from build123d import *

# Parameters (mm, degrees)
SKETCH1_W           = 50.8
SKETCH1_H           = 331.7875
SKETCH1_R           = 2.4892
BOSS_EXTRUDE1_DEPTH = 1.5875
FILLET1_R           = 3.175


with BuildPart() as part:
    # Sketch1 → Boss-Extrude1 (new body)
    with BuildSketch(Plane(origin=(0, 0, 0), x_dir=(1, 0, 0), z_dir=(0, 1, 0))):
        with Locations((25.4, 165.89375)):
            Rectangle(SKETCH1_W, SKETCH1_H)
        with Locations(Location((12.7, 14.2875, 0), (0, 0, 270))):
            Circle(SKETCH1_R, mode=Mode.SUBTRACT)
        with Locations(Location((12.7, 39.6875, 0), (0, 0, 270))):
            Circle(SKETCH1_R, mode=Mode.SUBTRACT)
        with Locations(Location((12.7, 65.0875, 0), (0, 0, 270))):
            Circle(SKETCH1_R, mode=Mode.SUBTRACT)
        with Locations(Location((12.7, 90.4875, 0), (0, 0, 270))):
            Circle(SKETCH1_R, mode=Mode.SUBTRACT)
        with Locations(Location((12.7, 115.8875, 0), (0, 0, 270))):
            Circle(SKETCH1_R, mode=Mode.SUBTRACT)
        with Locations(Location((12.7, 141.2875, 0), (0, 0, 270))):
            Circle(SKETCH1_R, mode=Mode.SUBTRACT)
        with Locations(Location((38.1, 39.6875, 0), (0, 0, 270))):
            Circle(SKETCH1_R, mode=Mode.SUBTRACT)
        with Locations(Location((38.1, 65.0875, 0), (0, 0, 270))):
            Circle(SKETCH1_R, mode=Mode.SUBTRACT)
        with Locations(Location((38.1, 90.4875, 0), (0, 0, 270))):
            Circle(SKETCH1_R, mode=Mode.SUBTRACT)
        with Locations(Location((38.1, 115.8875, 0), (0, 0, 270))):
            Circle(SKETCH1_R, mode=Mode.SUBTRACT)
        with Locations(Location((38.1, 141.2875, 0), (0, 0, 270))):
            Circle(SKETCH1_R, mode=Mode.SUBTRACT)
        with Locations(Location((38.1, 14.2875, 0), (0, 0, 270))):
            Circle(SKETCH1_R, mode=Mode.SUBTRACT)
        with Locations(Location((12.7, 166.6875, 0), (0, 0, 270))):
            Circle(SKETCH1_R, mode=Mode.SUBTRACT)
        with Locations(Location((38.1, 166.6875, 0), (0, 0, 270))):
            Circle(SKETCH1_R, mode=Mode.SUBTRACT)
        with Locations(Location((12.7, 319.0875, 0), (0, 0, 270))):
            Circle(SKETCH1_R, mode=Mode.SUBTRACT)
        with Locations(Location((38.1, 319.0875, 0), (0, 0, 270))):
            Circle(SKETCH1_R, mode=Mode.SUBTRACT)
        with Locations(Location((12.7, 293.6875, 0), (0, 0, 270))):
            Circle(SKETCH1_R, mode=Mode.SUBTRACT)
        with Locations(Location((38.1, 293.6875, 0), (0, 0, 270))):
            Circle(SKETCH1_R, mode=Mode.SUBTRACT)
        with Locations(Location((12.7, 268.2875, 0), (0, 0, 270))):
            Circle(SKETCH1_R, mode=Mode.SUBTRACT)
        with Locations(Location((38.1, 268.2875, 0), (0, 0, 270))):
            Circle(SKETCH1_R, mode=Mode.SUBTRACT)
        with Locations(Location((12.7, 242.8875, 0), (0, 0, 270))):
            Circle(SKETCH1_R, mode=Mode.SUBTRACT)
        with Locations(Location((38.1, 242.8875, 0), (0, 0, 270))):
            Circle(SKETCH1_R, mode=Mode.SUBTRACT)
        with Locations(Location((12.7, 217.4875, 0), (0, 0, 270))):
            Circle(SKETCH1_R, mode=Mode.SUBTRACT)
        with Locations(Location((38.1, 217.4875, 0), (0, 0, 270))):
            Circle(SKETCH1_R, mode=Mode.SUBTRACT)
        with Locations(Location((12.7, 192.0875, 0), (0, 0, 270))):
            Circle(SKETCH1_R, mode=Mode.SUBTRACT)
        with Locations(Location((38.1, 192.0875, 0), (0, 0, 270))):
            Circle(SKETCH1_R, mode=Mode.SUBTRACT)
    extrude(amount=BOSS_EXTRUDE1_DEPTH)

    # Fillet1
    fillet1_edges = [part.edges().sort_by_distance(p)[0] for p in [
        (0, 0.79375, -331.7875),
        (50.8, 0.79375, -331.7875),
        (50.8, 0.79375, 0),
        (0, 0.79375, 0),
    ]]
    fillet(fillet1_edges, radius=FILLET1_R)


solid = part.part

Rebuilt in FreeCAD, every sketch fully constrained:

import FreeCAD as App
import Part
import Sketcher

V = App.Vector
Q = App.Units.Quantity


def edges_at(feature, points):
    """Names of the edges that pass closest to the given points."""
    edges = feature.Shape.Edges
    near = lambda p: min(range(len(edges)), key=lambda i: edges[i].distToShape(Part.Vertex(*p))[0])
    return sorted({f"Edge{near(p) + 1}" for p in points})


def add_polygon(sketch, points):
    """Adds a closed chain of lines whose ends are joined by coincident constraints."""
    first, n = sketch.GeometryCount, len(points)
    for a, b in zip(points, points[1:] + points[:1]):
        sketch.addGeometry(Part.LineSegment(App.Vector(*a, 0), App.Vector(*b, 0)), False)
    for i in range(n):
        sketch.addConstraint(Sketcher.Constraint("Coincident", first + i, 2, first + (i + 1) % n, 1))

doc = App.newDocument("Part")
body = doc.addObject("PartDesign::Body", "Body")

sketch1 = body.newObject("Sketcher::SketchObject", "Sketch")
sketch1.AttachmentSupport = (doc.getObject("XZ_Plane"), [""])
sketch1.MapMode = "FlatFace"
add_polygon(sketch1, [(0, -331.8), (0, 0), (50.8, 0), (50.8, -331.8)])
sketch1.addGeometry(Part.Circle(V(12.7, -14.3, 0), V(0, 0, 1), 2.5), False)
sketch1.addGeometry(Part.Circle(V(12.7, -39.7, 0), V(0, 0, 1), 2.5), False)
sketch1.addGeometry(Part.Circle(V(12.7, -65.1, 0), V(0, 0, 1), 2.5), False)
sketch1.addGeometry(Part.Circle(V(12.7, -90.5, 0), V(0, 0, 1), 2.5), False)
sketch1.addGeometry(Part.Circle(V(12.7, -115.9, 0), V(0, 0, 1), 2.5), False)
sketch1.addGeometry(Part.Circle(V(12.7, -141.3, 0), V(0, 0, 1), 2.5), False)
sketch1.addGeometry(Part.Circle(V(38.1, -14.3, 0), V(0, 0, 1), 2.5), False)
sketch1.addGeometry(Part.Circle(V(38.1, -39.7, 0), V(0, 0, 1), 2.5), False)
sketch1.addGeometry(Part.Circle(V(38.1, -65.1, 0), V(0, 0, 1), 2.5), False)
sketch1.addGeometry(Part.Circle(V(38.1, -90.5, 0), V(0, 0, 1), 2.5), False)
sketch1.addGeometry(Part.Circle(V(38.1, -115.9, 0), V(0, 0, 1), 2.5), False)
sketch1.addGeometry(Part.Circle(V(38.1, -141.3, 0), V(0, 0, 1), 2.5), False)
sketch1.addGeometry(Part.Circle(V(12.7, -166.7, 0), V(0, 0, 1), 2.5), False)
sketch1.addGeometry(Part.Circle(V(12.7, -192.1, 0), V(0, 0, 1), 2.5), False)
sketch1.addGeometry(Part.Circle(V(12.7, -217.5, 0), V(0, 0, 1), 2.5), False)
sketch1.addGeometry(Part.Circle(V(12.7, -242.9, 0), V(0, 0, 1), 2.5), False)
sketch1.addGeometry(Part.Circle(V(12.7, -268.3, 0), V(0, 0, 1), 2.5), False)
sketch1.addGeometry(Part.Circle(V(12.7, -293.7, 0), V(0, 0, 1), 2.5), False)
sketch1.addGeometry(Part.Circle(V(12.7, -319.1, 0), V(0, 0, 1), 2.5), False)
sketch1.addGeometry(Part.Circle(V(38.1, -166.7, 0), V(0, 0, 1), 2.5), False)
sketch1.addGeometry(Part.Circle(V(38.1, -192.1, 0), V(0, 0, 1), 2.5), False)
sketch1.addGeometry(Part.Circle(V(38.1, -217.5, 0), V(0, 0, 1), 2.5), False)
sketch1.addGeometry(Part.Circle(V(38.1, -242.9, 0), V(0, 0, 1), 2.5), False)
sketch1.addGeometry(Part.Circle(V(38.1, -268.3, 0), V(0, 0, 1), 2.5), False)
sketch1.addGeometry(Part.Circle(V(38.1, -293.7, 0), V(0, 0, 1), 2.5), False)
sketch1.addGeometry(Part.Circle(V(38.1, -319.1, 0), V(0, 0, 1), 2.5), False)
sketch1.addConstraint(Sketcher.Constraint("Vertical", 0))
sketch1.addConstraint(Sketcher.Constraint("Horizontal", 1))
sketch1.addConstraint(Sketcher.Constraint("Vertical", 2))
sketch1.addConstraint(Sketcher.Constraint("Horizontal", 3))
sketch1.addConstraint(Sketcher.Constraint("Coincident", 0, 2, -1, 1))
sketch1.addConstraint(Sketcher.Constraint("Equal", 4, 5))
sketch1.addConstraint(Sketcher.Constraint("Equal", 5, 6))
sketch1.addConstraint(Sketcher.Constraint("Equal", 6, 7))
sketch1.addConstraint(Sketcher.Constraint("Equal", 7, 8))
sketch1.addConstraint(Sketcher.Constraint("Equal", 8, 9))
sketch1.addConstraint(Sketcher.Constraint("Equal", 9, 10))
sketch1.addConstraint(Sketcher.Constraint("Equal", 10, 11))
sketch1.addConstraint(Sketcher.Constraint("Equal", 11, 12))
sketch1.addConstraint(Sketcher.Constraint("Equal", 12, 13))
sketch1.addConstraint(Sketcher.Constraint("Equal", 13, 14))
sketch1.addConstraint(Sketcher.Constraint("Equal", 14, 15))
sketch1.addConstraint(Sketcher.Constraint("Equal", 15, 16))
sketch1.addConstraint(Sketcher.Constraint("Equal", 16, 17))
sketch1.addConstraint(Sketcher.Constraint("Equal", 17, 18))
sketch1.addConstraint(Sketcher.Constraint("Equal", 18, 19))
sketch1.addConstraint(Sketcher.Constraint("Equal", 19, 20))
sketch1.addConstraint(Sketcher.Constraint("Equal", 20, 21))
sketch1.addConstraint(Sketcher.Constraint("Equal", 21, 22))
sketch1.addConstraint(Sketcher.Constraint("Equal", 22, 23))
sketch1.addConstraint(Sketcher.Constraint("Equal", 23, 24))
sketch1.addConstraint(Sketcher.Constraint("Equal", 24, 25))
sketch1.addConstraint(Sketcher.Constraint("Equal", 25, 26))
sketch1.addConstraint(Sketcher.Constraint("Equal", 26, 27))
sketch1.addConstraint(Sketcher.Constraint("Equal", 27, 28))
sketch1.addConstraint(Sketcher.Constraint("Equal", 28, 29))
sketch1.addConstraint(Sketcher.Constraint("Horizontal", 4, 3, 10, 3))
sketch1.addConstraint(Sketcher.Constraint("Horizontal", 5, 3, 11, 3))
sketch1.addConstraint(Sketcher.Constraint("Horizontal", 6, 3, 12, 3))
sketch1.addConstraint(Sketcher.Constraint("Horizontal", 7, 3, 13, 3))
sketch1.addConstraint(Sketcher.Constraint("Horizontal", 8, 3, 14, 3))
sketch1.addConstraint(Sketcher.Constraint("Horizontal", 9, 3, 15, 3))
sketch1.addConstraint(Sketcher.Constraint("Horizontal", 16, 3, 23, 3))
sketch1.addConstraint(Sketcher.Constraint("Horizontal", 17, 3, 24, 3))
sketch1.addConstraint(Sketcher.Constraint("Horizontal", 18, 3, 25, 3))
sketch1.addConstraint(Sketcher.Constraint("Horizontal", 19, 3, 26, 3))
sketch1.addConstraint(Sketcher.Constraint("Horizontal", 20, 3, 27, 3))
sketch1.addConstraint(Sketcher.Constraint("Horizontal", 21, 3, 28, 3))
sketch1.addConstraint(Sketcher.Constraint("Horizontal", 22, 3, 29, 3))
sketch1.addConstraint(Sketcher.Constraint("Vertical", 4, 3, 5, 3))
sketch1.addConstraint(Sketcher.Constraint("Vertical", 5, 3, 6, 3))
sketch1.addConstraint(Sketcher.Constraint("Vertical", 6, 3, 7, 3))
sketch1.addConstraint(Sketcher.Constraint("Vertical", 7, 3, 8, 3))
sketch1.addConstraint(Sketcher.Constraint("Vertical", 8, 3, 9, 3))
sketch1.addConstraint(Sketcher.Constraint("Vertical", 10, 3, 11, 3))
sketch1.addConstraint(Sketcher.Constraint("Vertical", 11, 3, 12, 3))
sketch1.addConstraint(Sketcher.Constraint("Vertical", 12, 3, 13, 3))
sketch1.addConstraint(Sketcher.Constraint("Vertical", 13, 3, 14, 3))
sketch1.addConstraint(Sketcher.Constraint("Vertical", 14, 3, 15, 3))
sketch1.addConstraint(Sketcher.Constraint("Vertical", 9, 3, 16, 3))
sketch1.addConstraint(Sketcher.Constraint("Vertical", 16, 3, 17, 3))
sketch1.addConstraint(Sketcher.Constraint("Vertical", 17, 3, 18, 3))
sketch1.addConstraint(Sketcher.Constraint("Vertical", 18, 3, 19, 3))
sketch1.addConstraint(Sketcher.Constraint("Vertical", 19, 3, 20, 3))
sketch1.addConstraint(Sketcher.Constraint("Vertical", 20, 3, 21, 3))
sketch1.addConstraint(Sketcher.Constraint("Vertical", 21, 3, 22, 3))
sketch1.addConstraint(Sketcher.Constraint("Vertical", 15, 3, 23, 3))
sketch1.addConstraint(Sketcher.Constraint("Vertical", 23, 3, 24, 3))
sketch1.addConstraint(Sketcher.Constraint("Vertical", 24, 3, 25, 3))
sketch1.addConstraint(Sketcher.Constraint("Vertical", 25, 3, 26, 3))
sketch1.addConstraint(Sketcher.Constraint("Vertical", 26, 3, 27, 3))
sketch1.addConstraint(Sketcher.Constraint("Vertical", 27, 3, 28, 3))
sketch1.addConstraint(Sketcher.Constraint("Vertical", 28, 3, 29, 3))
sketch1.addConstraint(Sketcher.Constraint("DistanceX", 1, 1, 1, 2, Q("2 in")))
sketch1.addConstraint(Sketcher.Constraint("Diameter", 4, Q("0.196 in")))
sketch1.addConstraint(Sketcher.Constraint("DistanceY", 5, 3, 4, 3, Q("1 in")))
sketch1.addConstraint(Sketcher.Constraint("DistanceY", 6, 3, 5, 3, Q("1 in")))
sketch1.addConstraint(Sketcher.Constraint("DistanceY", 7, 3, 6, 3, Q("1 in")))
sketch1.addConstraint(Sketcher.Constraint("DistanceY", 8, 3, 7, 3, Q("1 in")))
sketch1.addConstraint(Sketcher.Constraint("DistanceY", 9, 3, 8, 3, Q("1 in")))
sketch1.addConstraint(Sketcher.Constraint("DistanceX", 4, 3, 10, 3, Q("1 in")))
sketch1.addConstraint(Sketcher.Constraint("DistanceY", 16, 3, 9, 3, Q("1 in")))
sketch1.addConstraint(Sketcher.Constraint("DistanceY", 17, 3, 16, 3, Q("1 in")))
sketch1.addConstraint(Sketcher.Constraint("DistanceY", 18, 3, 17, 3, Q("1 in")))
sketch1.addConstraint(Sketcher.Constraint("DistanceY", 19, 3, 18, 3, Q("1 in")))
sketch1.addConstraint(Sketcher.Constraint("DistanceY", 20, 3, 19, 3, Q("1 in")))
sketch1.addConstraint(Sketcher.Constraint("DistanceY", 21, 3, 20, 3, Q("1 in")))
sketch1.addConstraint(Sketcher.Constraint("DistanceY", 22, 3, 21, 3, Q("1 in")))
sketch1.addConstraint(Sketcher.Constraint("DistanceX", -1, 1, 4, 3, Q("0.5 in")))
sketch1.addConstraint(Sketcher.Constraint("DistanceY", 2, 2, 29, 3, Q("0.5 in")))
sketch1.addConstraint(Sketcher.Constraint("DistanceY", 0, 1, 0, 2, Q("13.0625 in")))
pad1 = body.newObject("PartDesign::Pad", "Pad")
pad1.Profile = sketch1
pad1.Length = Q("0.0625 in")
pad1.Reversed = True
doc.recompute()

fillet = body.newObject("PartDesign::Fillet", "Fillet")
fillet.Base = (pad1, edges_at(pad1, [
    (0, 0.794, -331.788),
    (50.8, 0.794, -331.788),
    (50.8, 0.794, 0),
    (0, 0.794, 0),
]))
fillet.Radius = Q("0.125 in")

doc.recompute()
